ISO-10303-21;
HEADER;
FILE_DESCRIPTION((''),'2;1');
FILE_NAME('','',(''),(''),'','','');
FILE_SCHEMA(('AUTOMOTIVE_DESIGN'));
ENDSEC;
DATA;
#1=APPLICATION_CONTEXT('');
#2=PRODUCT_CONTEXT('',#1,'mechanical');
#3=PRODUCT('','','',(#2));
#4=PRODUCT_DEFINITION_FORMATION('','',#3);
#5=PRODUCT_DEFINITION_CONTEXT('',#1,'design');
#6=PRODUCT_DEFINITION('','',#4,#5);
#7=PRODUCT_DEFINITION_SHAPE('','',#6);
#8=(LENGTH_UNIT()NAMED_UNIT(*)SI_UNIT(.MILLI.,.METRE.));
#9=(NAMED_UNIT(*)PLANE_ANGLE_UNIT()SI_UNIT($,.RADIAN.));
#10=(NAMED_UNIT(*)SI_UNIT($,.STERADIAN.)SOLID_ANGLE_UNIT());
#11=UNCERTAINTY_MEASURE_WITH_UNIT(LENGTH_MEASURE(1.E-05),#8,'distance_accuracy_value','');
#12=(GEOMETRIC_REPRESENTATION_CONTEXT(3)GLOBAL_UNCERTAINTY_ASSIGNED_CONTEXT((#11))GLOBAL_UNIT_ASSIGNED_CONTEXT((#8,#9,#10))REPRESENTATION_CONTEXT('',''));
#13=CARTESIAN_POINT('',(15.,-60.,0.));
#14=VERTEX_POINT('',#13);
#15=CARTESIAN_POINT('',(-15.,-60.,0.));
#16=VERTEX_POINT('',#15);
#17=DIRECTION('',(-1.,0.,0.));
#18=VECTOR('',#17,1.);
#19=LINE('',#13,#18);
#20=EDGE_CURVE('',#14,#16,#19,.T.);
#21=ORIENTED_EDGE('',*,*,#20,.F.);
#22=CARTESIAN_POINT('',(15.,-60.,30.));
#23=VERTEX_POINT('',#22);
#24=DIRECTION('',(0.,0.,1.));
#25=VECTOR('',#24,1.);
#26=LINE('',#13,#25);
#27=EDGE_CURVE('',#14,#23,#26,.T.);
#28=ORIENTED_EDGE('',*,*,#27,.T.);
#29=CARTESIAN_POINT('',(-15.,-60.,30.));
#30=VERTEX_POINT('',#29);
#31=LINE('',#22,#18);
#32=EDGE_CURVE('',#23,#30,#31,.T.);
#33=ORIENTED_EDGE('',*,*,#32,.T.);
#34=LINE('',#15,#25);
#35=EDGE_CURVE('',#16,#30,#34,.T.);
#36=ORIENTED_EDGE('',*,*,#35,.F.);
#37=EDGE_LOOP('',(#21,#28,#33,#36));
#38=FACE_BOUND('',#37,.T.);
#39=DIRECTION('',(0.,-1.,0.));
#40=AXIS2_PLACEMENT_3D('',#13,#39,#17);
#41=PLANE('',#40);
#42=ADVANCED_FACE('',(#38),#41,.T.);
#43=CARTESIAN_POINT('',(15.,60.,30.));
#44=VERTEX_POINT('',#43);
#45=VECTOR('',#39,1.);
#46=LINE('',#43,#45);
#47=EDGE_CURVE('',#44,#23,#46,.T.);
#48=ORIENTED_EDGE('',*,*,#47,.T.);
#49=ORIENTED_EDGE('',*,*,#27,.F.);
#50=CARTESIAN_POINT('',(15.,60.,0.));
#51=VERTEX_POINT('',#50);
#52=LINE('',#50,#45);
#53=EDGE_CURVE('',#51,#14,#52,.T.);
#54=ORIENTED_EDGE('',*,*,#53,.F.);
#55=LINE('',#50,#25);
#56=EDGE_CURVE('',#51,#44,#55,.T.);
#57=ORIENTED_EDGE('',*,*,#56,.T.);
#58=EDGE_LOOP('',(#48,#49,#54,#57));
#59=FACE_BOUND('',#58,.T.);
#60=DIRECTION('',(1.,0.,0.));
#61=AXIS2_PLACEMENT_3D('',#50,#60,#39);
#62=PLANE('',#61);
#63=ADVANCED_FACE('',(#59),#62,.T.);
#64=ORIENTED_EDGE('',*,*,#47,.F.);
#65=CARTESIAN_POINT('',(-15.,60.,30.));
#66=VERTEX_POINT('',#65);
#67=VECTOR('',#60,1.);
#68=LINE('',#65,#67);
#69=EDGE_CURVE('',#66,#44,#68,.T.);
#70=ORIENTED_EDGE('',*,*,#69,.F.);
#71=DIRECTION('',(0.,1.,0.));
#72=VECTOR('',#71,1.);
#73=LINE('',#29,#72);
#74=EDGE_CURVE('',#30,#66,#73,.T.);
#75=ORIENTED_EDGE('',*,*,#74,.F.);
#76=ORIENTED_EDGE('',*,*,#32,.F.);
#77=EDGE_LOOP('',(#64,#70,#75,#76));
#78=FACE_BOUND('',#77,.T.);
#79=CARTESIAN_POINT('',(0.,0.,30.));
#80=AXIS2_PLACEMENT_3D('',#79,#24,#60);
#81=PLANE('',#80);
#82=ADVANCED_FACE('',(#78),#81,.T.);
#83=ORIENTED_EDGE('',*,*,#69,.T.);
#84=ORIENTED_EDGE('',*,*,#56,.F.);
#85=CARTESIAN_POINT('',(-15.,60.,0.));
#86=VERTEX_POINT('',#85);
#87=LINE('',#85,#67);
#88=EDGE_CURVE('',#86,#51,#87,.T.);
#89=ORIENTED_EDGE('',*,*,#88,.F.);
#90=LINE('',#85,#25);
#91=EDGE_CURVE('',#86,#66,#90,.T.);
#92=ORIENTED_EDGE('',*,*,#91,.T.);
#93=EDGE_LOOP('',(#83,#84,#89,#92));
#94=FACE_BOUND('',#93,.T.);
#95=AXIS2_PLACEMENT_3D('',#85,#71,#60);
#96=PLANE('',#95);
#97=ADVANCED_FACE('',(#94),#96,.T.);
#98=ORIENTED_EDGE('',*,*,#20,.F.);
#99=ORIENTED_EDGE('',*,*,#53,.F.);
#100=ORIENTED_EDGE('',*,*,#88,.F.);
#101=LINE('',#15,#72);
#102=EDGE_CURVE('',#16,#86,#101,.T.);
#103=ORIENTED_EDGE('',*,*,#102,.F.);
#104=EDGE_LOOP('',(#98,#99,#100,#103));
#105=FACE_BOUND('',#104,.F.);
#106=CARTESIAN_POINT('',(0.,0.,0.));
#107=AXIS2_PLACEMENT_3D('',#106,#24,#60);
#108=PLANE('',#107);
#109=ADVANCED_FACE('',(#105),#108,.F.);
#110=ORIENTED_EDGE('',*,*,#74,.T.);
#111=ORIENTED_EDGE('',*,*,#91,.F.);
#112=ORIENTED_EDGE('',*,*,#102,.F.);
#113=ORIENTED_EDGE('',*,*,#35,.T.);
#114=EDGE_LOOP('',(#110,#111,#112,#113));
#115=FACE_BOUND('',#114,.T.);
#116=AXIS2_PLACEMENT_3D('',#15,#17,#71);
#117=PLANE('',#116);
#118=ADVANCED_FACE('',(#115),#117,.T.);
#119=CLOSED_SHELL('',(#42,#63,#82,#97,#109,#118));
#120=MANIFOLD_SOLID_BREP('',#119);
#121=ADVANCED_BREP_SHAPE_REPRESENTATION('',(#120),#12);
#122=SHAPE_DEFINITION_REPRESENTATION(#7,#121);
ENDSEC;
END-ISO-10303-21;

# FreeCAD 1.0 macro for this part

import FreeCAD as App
import Part
import Sketcher
from FreeCAD import Vector


def add_polygon(sketch, points):
    """Adds a closed chain of lines whose ends are joined by coincident constraints."""
    first, n = sketch.GeometryCount, len(points)
    for a, b in zip(points, points[1:] + points[:1]):
        sketch.addGeometry(Part.LineSegment(App.Vector(*a, 0), App.Vector(*b, 0)), False)
    for i in range(n):
        sketch.addConstraint(Sketcher.Constraint("Coincident", first + i, 2, first + (i + 1) % n, 1))

doc = App.newDocument("Part")
params = doc.addObject("Spreadsheet::Sheet", "Params")
for row, (alias, value) in enumerate([
    ("sketch1_width", "30 mm"),
    ("sketch1_height", "120 mm"),
    ("pad1_length", "30 mm"),
], start=1):
    params.set(f"A{row}", alias)
    params.set(f"B{row}", "=" + value)
    params.setAlias(f"B{row}", alias)

body = doc.addObject("PartDesign::Body", "Body")

sketch1 = body.newObject("Sketcher::SketchObject", "Sketch")
sketch1.AttachmentSupport = (doc.getObject("XY_Plane"), [""])
sketch1.MapMode = "FlatFace"
add_polygon(sketch1, [(-15, -60), (15, -60), (15, 60), (-15, 60)])
sketch1.addConstraint([
    Sketcher.Constraint("Horizontal", 0),
    Sketcher.Constraint("Vertical", 1),
    Sketcher.Constraint("Horizontal", 2),
    Sketcher.Constraint("Vertical", 3),
    Sketcher.Constraint("Symmetric", 0, 2, 2, 2, -1, 1),
    Sketcher.Constraint("DistanceX", 0, 1, 0, 2, 30.0),
    Sketcher.Constraint("DistanceY", 1, 1, 1, 2, 120.0),
])
sketch1.setExpression("Constraints[9]", "Params.sketch1_width")
sketch1.setExpression("Constraints[10]", "Params.sketch1_height")
pad1 = body.newObject("PartDesign::Pad", "Pad")
pad1.Profile = sketch1
pad1.setExpression("Length", "Params.pad1_length")

doc.recompute()
